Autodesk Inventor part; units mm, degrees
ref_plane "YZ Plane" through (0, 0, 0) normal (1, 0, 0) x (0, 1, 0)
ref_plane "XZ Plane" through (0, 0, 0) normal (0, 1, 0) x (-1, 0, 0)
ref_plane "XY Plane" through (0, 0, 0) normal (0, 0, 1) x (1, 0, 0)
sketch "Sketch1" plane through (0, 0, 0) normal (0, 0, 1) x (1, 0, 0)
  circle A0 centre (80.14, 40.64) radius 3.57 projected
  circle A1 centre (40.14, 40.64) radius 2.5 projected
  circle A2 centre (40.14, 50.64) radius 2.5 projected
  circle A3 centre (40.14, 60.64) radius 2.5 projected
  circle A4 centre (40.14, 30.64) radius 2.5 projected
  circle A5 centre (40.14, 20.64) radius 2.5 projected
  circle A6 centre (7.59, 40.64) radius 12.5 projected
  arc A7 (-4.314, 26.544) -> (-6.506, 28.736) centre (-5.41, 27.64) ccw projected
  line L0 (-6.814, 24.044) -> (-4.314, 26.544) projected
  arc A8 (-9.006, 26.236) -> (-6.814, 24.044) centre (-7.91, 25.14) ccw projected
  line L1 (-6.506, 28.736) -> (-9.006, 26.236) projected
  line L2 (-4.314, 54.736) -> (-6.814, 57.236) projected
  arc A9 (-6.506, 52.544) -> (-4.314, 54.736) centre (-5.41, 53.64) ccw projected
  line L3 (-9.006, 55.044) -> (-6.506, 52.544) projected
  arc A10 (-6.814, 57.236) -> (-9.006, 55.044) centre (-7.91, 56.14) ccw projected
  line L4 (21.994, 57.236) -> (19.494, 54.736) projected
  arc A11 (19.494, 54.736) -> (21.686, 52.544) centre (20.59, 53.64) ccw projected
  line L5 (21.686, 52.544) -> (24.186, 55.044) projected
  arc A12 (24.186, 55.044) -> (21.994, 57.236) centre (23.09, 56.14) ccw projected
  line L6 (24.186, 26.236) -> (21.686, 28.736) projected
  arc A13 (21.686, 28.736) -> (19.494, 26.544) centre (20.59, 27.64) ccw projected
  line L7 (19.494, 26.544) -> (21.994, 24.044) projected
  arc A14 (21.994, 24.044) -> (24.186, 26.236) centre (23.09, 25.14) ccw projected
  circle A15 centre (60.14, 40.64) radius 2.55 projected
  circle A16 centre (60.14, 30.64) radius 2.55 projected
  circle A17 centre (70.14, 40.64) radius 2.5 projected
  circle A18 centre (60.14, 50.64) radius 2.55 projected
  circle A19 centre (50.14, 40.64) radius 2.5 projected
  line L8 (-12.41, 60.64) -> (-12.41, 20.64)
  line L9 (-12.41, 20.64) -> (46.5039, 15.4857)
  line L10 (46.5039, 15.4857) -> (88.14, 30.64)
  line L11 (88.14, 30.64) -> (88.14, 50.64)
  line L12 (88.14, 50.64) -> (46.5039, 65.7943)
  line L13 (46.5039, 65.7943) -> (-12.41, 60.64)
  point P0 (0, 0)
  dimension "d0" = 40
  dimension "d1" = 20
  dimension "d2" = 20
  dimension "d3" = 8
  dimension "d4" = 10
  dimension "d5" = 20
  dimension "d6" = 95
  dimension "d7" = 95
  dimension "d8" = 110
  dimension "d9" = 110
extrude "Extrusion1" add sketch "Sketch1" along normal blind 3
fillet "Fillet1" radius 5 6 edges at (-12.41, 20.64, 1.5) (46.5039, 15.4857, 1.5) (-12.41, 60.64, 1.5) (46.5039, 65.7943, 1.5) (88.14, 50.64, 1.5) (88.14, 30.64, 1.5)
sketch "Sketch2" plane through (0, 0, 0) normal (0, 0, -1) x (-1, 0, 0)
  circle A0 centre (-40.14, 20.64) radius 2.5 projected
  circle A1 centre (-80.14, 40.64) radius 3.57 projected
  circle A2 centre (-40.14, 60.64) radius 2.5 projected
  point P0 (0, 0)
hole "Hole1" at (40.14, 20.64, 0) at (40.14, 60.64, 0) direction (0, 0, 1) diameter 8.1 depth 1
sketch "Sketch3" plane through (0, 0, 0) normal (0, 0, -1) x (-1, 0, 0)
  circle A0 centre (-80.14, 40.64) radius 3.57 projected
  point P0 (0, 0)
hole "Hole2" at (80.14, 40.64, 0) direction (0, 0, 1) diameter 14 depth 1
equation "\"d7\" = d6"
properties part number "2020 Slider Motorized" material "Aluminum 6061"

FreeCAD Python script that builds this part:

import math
import FreeCAD as App
import Part
import Sketcher
Q = App.Units.Quantity


def edges_at(feature, points):
    """Names of the edges that pass closest to the given points."""
    edges = feature.Shape.Edges
    near = lambda p: min(range(len(edges)), key=lambda i: edges[i].distToShape(Part.Vertex(*p))[0])
    return sorted({f"Edge{near(p) + 1}" for p in points})

doc = App.newDocument("Part")
body = doc.addObject("PartDesign::Body", "Body")

# Sketch on XY plane
sketch1 = doc.addObject("Sketcher::SketchObject", "Sketch")
body.addObject(sketch1)
sketch1.AttachmentSupport = (doc.XY_Plane, [""])
sketch1.MapMode = "FlatFace"
sketch1.addGeometry([
    Part.LineSegment(App.Vector(46.5039, 65.7943, 0), App.Vector(-12.41, 60.64, 0)),  # 0
    Part.LineSegment(App.Vector(-12.41, 60.64, 0), App.Vector(-12.41, 20.64, 0)),  # 1
    Part.LineSegment(App.Vector(-12.41, 20.64, 0), App.Vector(46.5039, 15.4857, 0)),  # 2
    Part.LineSegment(App.Vector(46.5039, 15.4857, 0), App.Vector(88.14, 30.64, 0)),  # 3
    Part.LineSegment(App.Vector(88.14, 30.64, 0), App.Vector(88.14, 50.64, 0)),  # 4
    Part.LineSegment(App.Vector(88.14, 50.64, 0), App.Vector(46.5039, 65.7943, 0)),  # 5
    Part.ArcOfCircle(Part.Circle(App.Vector(-5.41, 27.64, 0), App.Vector(0, 0, 1), 1.549978), math.radians(-45), math.radians(135)),  # 6
    Part.LineSegment(App.Vector(-4.314, 26.544, 0), App.Vector(-6.814, 24.044, 0)),  # 7
    Part.ArcOfCircle(Part.Circle(App.Vector(-7.91, 25.14, 0), App.Vector(0, 0, 1), 1.549978), math.radians(135), math.radians(315)),  # 8
    Part.LineSegment(App.Vector(-9.006, 26.236, 0), App.Vector(-6.506, 28.736, 0)),  # 9
    Part.LineSegment(App.Vector(21.686, 28.736, 0), App.Vector(24.186, 26.236, 0)),  # 10
    Part.ArcOfCircle(Part.Circle(App.Vector(23.09, 25.14, 0), App.Vector(0, 0, 1), 1.549978), math.radians(-135), math.radians(45)),  # 11
    Part.LineSegment(App.Vector(21.994, 24.044, 0), App.Vector(19.494, 26.544, 0)),  # 12
    Part.ArcOfCircle(Part.Circle(App.Vector(20.59, 27.64, 0), App.Vector(0, 0, 1), 1.549978), math.radians(45), math.radians(225)),  # 13
    Part.Circle(App.Vector(7.59, 40.64, 0), App.Vector(0, 0, 1), 12.5),  # 14
    Part.Circle(App.Vector(40.14, 20.64, 0), App.Vector(0, 0, 1), 2.5),  # 15
    Part.Circle(App.Vector(40.14, 30.64, 0), App.Vector(0, 0, 1), 2.5),  # 16
    Part.Circle(App.Vector(60.14, 30.64, 0), App.Vector(0, 0, 1), 2.55),  # 17
    Part.Circle(App.Vector(40.14, 40.64, 0), App.Vector(0, 0, 1), 2.5),  # 18
    Part.Circle(App.Vector(50.14, 40.64, 0), App.Vector(0, 0, 1), 2.5),  # 19
    Part.Circle(App.Vector(60.14, 40.64, 0), App.Vector(0, 0, 1), 2.55),  # 20
    Part.Circle(App.Vector(70.14, 40.64, 0), App.Vector(0, 0, 1), 2.5),  # 21
    Part.Circle(App.Vector(80.14, 40.64, 0), App.Vector(0, 0, 1), 3.57),  # 22
    Part.LineSegment(App.Vector(-6.814, 57.236, 0), App.Vector(-4.314, 54.736, 0)),  # 23
    Part.ArcOfCircle(Part.Circle(App.Vector(-5.41, 53.64, 0), App.Vector(0, 0, 1), 1.549978), math.radians(-135), math.radians(45)),  # 24
    Part.LineSegment(App.Vector(-6.506, 52.544, 0), App.Vector(-9.006, 55.044, 0)),  # 25
    Part.ArcOfCircle(Part.Circle(App.Vector(-7.91, 56.14, 0), App.Vector(0, 0, 1), 1.549978), math.radians(45), math.radians(225)),  # 26
    Part.LineSegment(App.Vector(19.494, 54.736, 0), App.Vector(21.994, 57.236, 0)),  # 27
    Part.ArcOfCircle(Part.Circle(App.Vector(23.09, 56.14, 0), App.Vector(0, 0, 1), 1.549978), math.radians(-45), math.radians(135)),  # 28
    Part.LineSegment(App.Vector(24.186, 55.044, 0), App.Vector(21.686, 52.544, 0)),  # 29
    Part.ArcOfCircle(Part.Circle(App.Vector(20.59, 53.64, 0), App.Vector(0, 0, 1), 1.549978), math.radians(135), math.radians(315)),  # 30
    Part.Circle(App.Vector(40.14, 50.64, 0), App.Vector(0, 0, 1), 2.5),  # 31
    Part.Circle(App.Vector(60.14, 50.64, 0), App.Vector(0, 0, 1), 2.55),  # 32
    Part.Circle(App.Vector(40.14, 60.64, 0), App.Vector(0, 0, 1), 2.5),  # 33
], False)
sketch1.addConstraint([
    Sketcher.Constraint("Coincident", 0, 2, 1, 1),
    Sketcher.Constraint("Coincident", 1, 2, 2, 1),
    Sketcher.Constraint("Coincident", 2, 2, 3, 1),
    Sketcher.Constraint("Coincident", 3, 2, 4, 1),
    Sketcher.Constraint("Coincident", 4, 2, 5, 1),
    Sketcher.Constraint("Coincident", 5, 2, 0, 1),
    Sketcher.Constraint("Tangent", 6, 1, 7, 1),
    Sketcher.Constraint("Tangent", 7, 2, 8, 2),
    Sketcher.Constraint("Tangent", 8, 1, 9, 1),
    Sketcher.Constraint("Tangent", 9, 2, 6, 2),
    Sketcher.Constraint("Tangent", 10, 2, 11, 2),
    Sketcher.Constraint("Tangent", 11, 1, 12, 1),
    Sketcher.Constraint("Tangent", 12, 2, 13, 2),
    Sketcher.Constraint("Tangent", 13, 1, 10, 1),
    Sketcher.Constraint("Tangent", 23, 2, 24, 2),
    Sketcher.Constraint("Tangent", 24, 1, 25, 1),
    Sketcher.Constraint("Tangent", 25, 2, 26, 2),
    Sketcher.Constraint("Tangent", 26, 1, 23, 1),
    Sketcher.Constraint("Tangent", 27, 2, 28, 2),
    Sketcher.Constraint("Tangent", 28, 1, 29, 1),
    Sketcher.Constraint("Tangent", 29, 2, 30, 2),
    Sketcher.Constraint("Tangent", 30, 1, 27, 1),
    Sketcher.Constraint("Vertical", 1),
    Sketcher.Constraint("Vertical", 4),
    Sketcher.Constraint("Equal", 6, 8),
    Sketcher.Constraint("Equal", 8, 11),
    Sketcher.Constraint("Equal", 11, 13),
    Sketcher.Constraint("Equal", 15, 16),
    Sketcher.Constraint("Equal", 16, 18),
    Sketcher.Constraint("Equal", 18, 19),
    Sketcher.Constraint("Equal", 17, 20),
    Sketcher.Constraint("Equal", 19, 21),
    Sketcher.Constraint("Equal", 13, 24),
    Sketcher.Constraint("Equal", 24, 26),
    Sketcher.Constraint("Equal", 26, 28),
    Sketcher.Constraint("Equal", 28, 30),
    Sketcher.Constraint("Equal", 21, 31),
    Sketcher.Constraint("Equal", 20, 32),
    Sketcher.Constraint("Equal", 31, 33),
    Sketcher.Constraint("Perpendicular", 9, 10),
    Sketcher.Constraint("Parallel", 12, 23),
    Sketcher.Constraint("Perpendicular", 25, 27),
    Sketcher.Constraint("Horizontal", 8, 3, 11, 3),
    Sketcher.Constraint("Horizontal", 6, 3, 13, 3),
    Sketcher.Constraint("Horizontal", 16, 3, 17, 3),
    Sketcher.Constraint("Horizontal", 14, 3, 18, 3),
    Sketcher.Constraint("Horizontal", 18, 3, 19, 3),
    Sketcher.Constraint("Horizontal", 19, 3, 20, 3),
    Sketcher.Constraint("Horizontal", 20, 3, 21, 3),
    Sketcher.Constraint("Horizontal", 21, 3, 22, 3),
    Sketcher.Constraint("Horizontal", 26, 3, 28, 3),
    Sketcher.Constraint("Horizontal", 24, 3, 30, 3),
    Sketcher.Constraint("Horizontal", 31, 3, 32, 3),
    Sketcher.Constraint("Horizontal", 33, 3, 0, 2),
    Sketcher.Constraint("Horizontal", 15, 3, 1, 2),
    Sketcher.Constraint("Horizontal", 17, 3, 3, 2),
    Sketcher.Constraint("Horizontal", 32, 3, 4, 2),
    Sketcher.Constraint("Horizontal", 8, 1, 10, 2),
    Sketcher.Constraint("Vertical", 15, 3, 16, 3),
    Sketcher.Constraint("Vertical", 16, 3, 18, 3),
    Sketcher.Constraint("Vertical", 17, 3, 20, 3),
    Sketcher.Constraint("Vertical", 6, 3, 24, 3),
    Sketcher.Constraint("Vertical", 8, 3, 26, 3),
    Sketcher.Constraint("Vertical", 11, 3, 28, 3),
    Sketcher.Constraint("Vertical", 18, 3, 31, 3),
    Sketcher.Constraint("Vertical", 20, 3, 32, 3),
    Sketcher.Constraint("Vertical", 31, 3, 33, 3),
    Sketcher.Constraint("Vertical", 2, 2, 5, 2),
    Sketcher.Constraint("Equal", 0, 2),
    Sketcher.Constraint("Equal", 3, 5),
    Sketcher.Constraint("DistanceY", 1, 2, 1, 1, Q("40 mm")),
    Sketcher.Constraint("DistanceY", 4, 1, 4, 2, Q("20 mm")),
    Sketcher.Constraint("Angle", 3, Q("20 deg")),
    Sketcher.Constraint("Diameter", 14, Q("25 mm")),
    Sketcher.Constraint("Diameter", 15, Q("5 mm")),
    Sketcher.Constraint("DistanceY", 15, 3, 14, 3, Q("20 mm")),
    Sketcher.Constraint("DistanceX", 16, 3, 17, 3, Q("20 mm")),
    Sketcher.Constraint("DistanceX", 18, 3, 19, 3, Q("10 mm")),
    Sketcher.Constraint("DistanceX", 20, 3, 21, 3, Q("10 mm")),
    Sketcher.Constraint("DistanceX", 21, 3, 22, 3, Q("10 mm")),
    Sketcher.Constraint("DistanceX", 0, 2, 14, 3, Q("20 mm")),
    Sketcher.Constraint("DistanceX", 22, 3, 3, 2, Q("8 mm")),
    Sketcher.Constraint("Diameter", 17, Q("5.1 mm")),
    Sketcher.Constraint("Diameter", 22, Q("7.14 mm")),
    Sketcher.Constraint("Angle", 0, Q("-175 deg")),
    Sketcher.Constraint("Radius", 6, Q("1.55 mm")),
    Sketcher.Constraint("DistanceX", 8, 3, 11, 3, Q("31 mm")),
    Sketcher.Constraint("DistanceX", 6, 3, 13, 3, Q("26 mm")),
    Sketcher.Constraint("DistanceX", 6, 3, 14, 3, Q("13 mm")),
    Sketcher.Constraint("DistanceY", 6, 3, 14, 3, Q("13 mm")),
    Sketcher.Constraint("DistanceY", 14, 3, 24, 3, Q("13 mm")),
    Sketcher.Constraint("DistanceX", 6, 3, -1, 1, Q("5.41 mm")),
    Sketcher.Constraint("DistanceY", -1, 1, 6, 3, Q("27.64 mm")),
    Sketcher.Constraint("DistanceX", -1, 1, 15, 3, Q("40.14 mm")),
])
pad1 = doc.addObject("PartDesign::Pad", "Pad")
body.addObject(pad1)
pad1.Profile = sketch1
pad1.Length = 3
doc.recompute()

fillet = doc.addObject("PartDesign::Fillet", "Fillet")
body.addObject(fillet)
fillet.Base = (pad1, edges_at(pad1, [
    (-12.41, 20.64, 1.5),
    (46.504, 15.486, 1.5),
    (-12.41, 60.64, 1.5),
    (46.504, 65.794, 1.5),
    (88.14, 50.64, 1.5),
    (88.14, 30.64, 1.5),
]))
fillet.Radius = 5

# Sketch on XY plane
sketch2 = doc.addObject("Sketcher::SketchObject", "Sketch001")
body.addObject(sketch2)
sketch2.AttachmentSupport = (doc.XY_Plane, [""])
sketch2.MapMode = "FlatFace"
sketch2.addGeometry([
    Part.Circle(App.Vector(40.14, 20.64, 0), App.Vector(0, 0, 1), 4.05),
    Part.Circle(App.Vector(40.14, 60.64, 0), App.Vector(0, 0, 1), 4.05),
], False)
sketch2.addConstraint([
    Sketcher.Constraint("Equal", 0, 1),
    Sketcher.Constraint("Vertical", 0, 3, 1, 3),
    Sketcher.Constraint("Diameter", 0, Q("8.1 mm")),
    Sketcher.Constraint("DistanceY", 0, 3, 1, 3, Q("40 mm")),
    Sketcher.Constraint("DistanceX", -1, 1, 0, 3, Q("40.14 mm")),
    Sketcher.Constraint("DistanceY", -1, 1, 0, 3, Q("20.64 mm")),
])
doc.recompute()
hole = doc.addObject("PartDesign::Hole", "Hole")
body.addObject(hole)
hole.Profile = sketch2
hole.ThreadType = "None"
hole.Diameter = 8.1
hole.DepthType = "Dimension"
hole.Depth = 1
hole.DrillPoint = "Flat"
hole.Reversed = True

# Sketch on XY plane
sketch3 = doc.addObject("Sketcher::SketchObject", "Sketch002")
body.addObject(sketch3)
sketch3.AttachmentSupport = (doc.XY_Plane, [""])
sketch3.MapMode = "FlatFace"
sketch3.addGeometry(Part.Circle(App.Vector(80.14, 40.64, 0), App.Vector(0, 0, 1), 7), False)
sketch3.addConstraint([
    Sketcher.Constraint("Diameter", 0, Q("14 mm")),
    Sketcher.Constraint("DistanceX", -1, 1, 0, 3, Q("80.14 mm")),
    Sketcher.Constraint("DistanceY", -1, 1, 0, 3, Q("40.64 mm")),
])
doc.recompute()
hole2 = doc.addObject("PartDesign::Hole", "Hole001")
body.addObject(hole2)
hole2.Profile = sketch3
hole2.ThreadType = "None"
hole2.Diameter = 14
hole2.DepthType = "Dimension"
hole2.Depth = 1
hole2.DrillPoint = "Flat"
hole2.Reversed = True

doc.recompute()
